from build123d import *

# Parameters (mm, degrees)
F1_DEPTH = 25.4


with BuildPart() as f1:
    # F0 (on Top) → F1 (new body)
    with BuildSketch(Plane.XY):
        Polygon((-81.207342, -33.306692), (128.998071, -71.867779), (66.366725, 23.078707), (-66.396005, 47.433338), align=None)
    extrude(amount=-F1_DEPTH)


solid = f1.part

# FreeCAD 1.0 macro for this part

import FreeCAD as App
import Part
import Sketcher
Q = App.Units.Quantity

doc = App.newDocument("Part")
params = doc.addObject("Spreadsheet::Sheet", "Params")
for row, (alias, value) in enumerate([
    ("pad1_length", "1 in"),
], start=1):
    params.set(f"A{row}", alias)
    params.set(f"B{row}", "=" + value)
    params.setAlias(f"B{row}", alias)

body = doc.addObject("PartDesign::Body", "Body")

# Sketch on XY plane
sketch1 = body.newObject("Sketcher::SketchObject", "Sketch")
sketch1.AttachmentSupport = (doc.getObject("XY_Plane"), [""])
sketch1.MapMode = "FlatFace"
sketch1.addGeometry(Part.LineSegment(App.Vector(-81, -33, 0), App.Vector(129, -72, 0)), False)
sketch1.addGeometry(Part.LineSegment(App.Vector(129, -72, 0), App.Vector(66, 23, 0)), False)
sketch1.addGeometry(Part.LineSegment(App.Vector(66, 23, 0), App.Vector(-66, 47, 0)), False)
sketch1.addGeometry(Part.LineSegment(App.Vector(-66, 47, 0), App.Vector(-81, -33, 0)), False)
sketch1.addConstraint(Sketcher.Constraint("Coincident", 0, 2, 1, 1))
sketch1.addConstraint(Sketcher.Constraint("Coincident", 1, 2, 2, 1))
sketch1.addConstraint(Sketcher.Constraint("Coincident", 2, 2, 3, 1))
sketch1.addConstraint(Sketcher.Constraint("Coincident", 3, 2, 0, 1))
sketch1.addConstraint(Sketcher.Constraint("Parallel", 0, 2))
sketch1.addConstraint(Sketcher.Constraint("Perpendicular", 2, 3))
sketch1.addConstraint(Sketcher.Constraint("Distance", 0, Q("8.4139001 in")))
sketch1.addConstraint(Sketcher.Constraint("DistanceY", 3, 2, 1, 2, 56.385399))
sketch1.addConstraint(Sketcher.Constraint("Distance", 2, 134.978111))
sketch1.addConstraint(Sketcher.Constraint("Distance", 3, 82.08732))
sketch1.addConstraint(Sketcher.Constraint("DistanceX", -1, 1, 0, 2, 128.998071))
sketch1.addConstraint(Sketcher.Constraint("DistanceY", 0, 2, -1, 1, 71.867779))
pad1 = body.newObject("PartDesign::Pad", "Pad")
pad1.Profile = sketch1
pad1.setExpression("Length", "Params.pad1_length")
pad1.Reversed = True

doc.recompute()
